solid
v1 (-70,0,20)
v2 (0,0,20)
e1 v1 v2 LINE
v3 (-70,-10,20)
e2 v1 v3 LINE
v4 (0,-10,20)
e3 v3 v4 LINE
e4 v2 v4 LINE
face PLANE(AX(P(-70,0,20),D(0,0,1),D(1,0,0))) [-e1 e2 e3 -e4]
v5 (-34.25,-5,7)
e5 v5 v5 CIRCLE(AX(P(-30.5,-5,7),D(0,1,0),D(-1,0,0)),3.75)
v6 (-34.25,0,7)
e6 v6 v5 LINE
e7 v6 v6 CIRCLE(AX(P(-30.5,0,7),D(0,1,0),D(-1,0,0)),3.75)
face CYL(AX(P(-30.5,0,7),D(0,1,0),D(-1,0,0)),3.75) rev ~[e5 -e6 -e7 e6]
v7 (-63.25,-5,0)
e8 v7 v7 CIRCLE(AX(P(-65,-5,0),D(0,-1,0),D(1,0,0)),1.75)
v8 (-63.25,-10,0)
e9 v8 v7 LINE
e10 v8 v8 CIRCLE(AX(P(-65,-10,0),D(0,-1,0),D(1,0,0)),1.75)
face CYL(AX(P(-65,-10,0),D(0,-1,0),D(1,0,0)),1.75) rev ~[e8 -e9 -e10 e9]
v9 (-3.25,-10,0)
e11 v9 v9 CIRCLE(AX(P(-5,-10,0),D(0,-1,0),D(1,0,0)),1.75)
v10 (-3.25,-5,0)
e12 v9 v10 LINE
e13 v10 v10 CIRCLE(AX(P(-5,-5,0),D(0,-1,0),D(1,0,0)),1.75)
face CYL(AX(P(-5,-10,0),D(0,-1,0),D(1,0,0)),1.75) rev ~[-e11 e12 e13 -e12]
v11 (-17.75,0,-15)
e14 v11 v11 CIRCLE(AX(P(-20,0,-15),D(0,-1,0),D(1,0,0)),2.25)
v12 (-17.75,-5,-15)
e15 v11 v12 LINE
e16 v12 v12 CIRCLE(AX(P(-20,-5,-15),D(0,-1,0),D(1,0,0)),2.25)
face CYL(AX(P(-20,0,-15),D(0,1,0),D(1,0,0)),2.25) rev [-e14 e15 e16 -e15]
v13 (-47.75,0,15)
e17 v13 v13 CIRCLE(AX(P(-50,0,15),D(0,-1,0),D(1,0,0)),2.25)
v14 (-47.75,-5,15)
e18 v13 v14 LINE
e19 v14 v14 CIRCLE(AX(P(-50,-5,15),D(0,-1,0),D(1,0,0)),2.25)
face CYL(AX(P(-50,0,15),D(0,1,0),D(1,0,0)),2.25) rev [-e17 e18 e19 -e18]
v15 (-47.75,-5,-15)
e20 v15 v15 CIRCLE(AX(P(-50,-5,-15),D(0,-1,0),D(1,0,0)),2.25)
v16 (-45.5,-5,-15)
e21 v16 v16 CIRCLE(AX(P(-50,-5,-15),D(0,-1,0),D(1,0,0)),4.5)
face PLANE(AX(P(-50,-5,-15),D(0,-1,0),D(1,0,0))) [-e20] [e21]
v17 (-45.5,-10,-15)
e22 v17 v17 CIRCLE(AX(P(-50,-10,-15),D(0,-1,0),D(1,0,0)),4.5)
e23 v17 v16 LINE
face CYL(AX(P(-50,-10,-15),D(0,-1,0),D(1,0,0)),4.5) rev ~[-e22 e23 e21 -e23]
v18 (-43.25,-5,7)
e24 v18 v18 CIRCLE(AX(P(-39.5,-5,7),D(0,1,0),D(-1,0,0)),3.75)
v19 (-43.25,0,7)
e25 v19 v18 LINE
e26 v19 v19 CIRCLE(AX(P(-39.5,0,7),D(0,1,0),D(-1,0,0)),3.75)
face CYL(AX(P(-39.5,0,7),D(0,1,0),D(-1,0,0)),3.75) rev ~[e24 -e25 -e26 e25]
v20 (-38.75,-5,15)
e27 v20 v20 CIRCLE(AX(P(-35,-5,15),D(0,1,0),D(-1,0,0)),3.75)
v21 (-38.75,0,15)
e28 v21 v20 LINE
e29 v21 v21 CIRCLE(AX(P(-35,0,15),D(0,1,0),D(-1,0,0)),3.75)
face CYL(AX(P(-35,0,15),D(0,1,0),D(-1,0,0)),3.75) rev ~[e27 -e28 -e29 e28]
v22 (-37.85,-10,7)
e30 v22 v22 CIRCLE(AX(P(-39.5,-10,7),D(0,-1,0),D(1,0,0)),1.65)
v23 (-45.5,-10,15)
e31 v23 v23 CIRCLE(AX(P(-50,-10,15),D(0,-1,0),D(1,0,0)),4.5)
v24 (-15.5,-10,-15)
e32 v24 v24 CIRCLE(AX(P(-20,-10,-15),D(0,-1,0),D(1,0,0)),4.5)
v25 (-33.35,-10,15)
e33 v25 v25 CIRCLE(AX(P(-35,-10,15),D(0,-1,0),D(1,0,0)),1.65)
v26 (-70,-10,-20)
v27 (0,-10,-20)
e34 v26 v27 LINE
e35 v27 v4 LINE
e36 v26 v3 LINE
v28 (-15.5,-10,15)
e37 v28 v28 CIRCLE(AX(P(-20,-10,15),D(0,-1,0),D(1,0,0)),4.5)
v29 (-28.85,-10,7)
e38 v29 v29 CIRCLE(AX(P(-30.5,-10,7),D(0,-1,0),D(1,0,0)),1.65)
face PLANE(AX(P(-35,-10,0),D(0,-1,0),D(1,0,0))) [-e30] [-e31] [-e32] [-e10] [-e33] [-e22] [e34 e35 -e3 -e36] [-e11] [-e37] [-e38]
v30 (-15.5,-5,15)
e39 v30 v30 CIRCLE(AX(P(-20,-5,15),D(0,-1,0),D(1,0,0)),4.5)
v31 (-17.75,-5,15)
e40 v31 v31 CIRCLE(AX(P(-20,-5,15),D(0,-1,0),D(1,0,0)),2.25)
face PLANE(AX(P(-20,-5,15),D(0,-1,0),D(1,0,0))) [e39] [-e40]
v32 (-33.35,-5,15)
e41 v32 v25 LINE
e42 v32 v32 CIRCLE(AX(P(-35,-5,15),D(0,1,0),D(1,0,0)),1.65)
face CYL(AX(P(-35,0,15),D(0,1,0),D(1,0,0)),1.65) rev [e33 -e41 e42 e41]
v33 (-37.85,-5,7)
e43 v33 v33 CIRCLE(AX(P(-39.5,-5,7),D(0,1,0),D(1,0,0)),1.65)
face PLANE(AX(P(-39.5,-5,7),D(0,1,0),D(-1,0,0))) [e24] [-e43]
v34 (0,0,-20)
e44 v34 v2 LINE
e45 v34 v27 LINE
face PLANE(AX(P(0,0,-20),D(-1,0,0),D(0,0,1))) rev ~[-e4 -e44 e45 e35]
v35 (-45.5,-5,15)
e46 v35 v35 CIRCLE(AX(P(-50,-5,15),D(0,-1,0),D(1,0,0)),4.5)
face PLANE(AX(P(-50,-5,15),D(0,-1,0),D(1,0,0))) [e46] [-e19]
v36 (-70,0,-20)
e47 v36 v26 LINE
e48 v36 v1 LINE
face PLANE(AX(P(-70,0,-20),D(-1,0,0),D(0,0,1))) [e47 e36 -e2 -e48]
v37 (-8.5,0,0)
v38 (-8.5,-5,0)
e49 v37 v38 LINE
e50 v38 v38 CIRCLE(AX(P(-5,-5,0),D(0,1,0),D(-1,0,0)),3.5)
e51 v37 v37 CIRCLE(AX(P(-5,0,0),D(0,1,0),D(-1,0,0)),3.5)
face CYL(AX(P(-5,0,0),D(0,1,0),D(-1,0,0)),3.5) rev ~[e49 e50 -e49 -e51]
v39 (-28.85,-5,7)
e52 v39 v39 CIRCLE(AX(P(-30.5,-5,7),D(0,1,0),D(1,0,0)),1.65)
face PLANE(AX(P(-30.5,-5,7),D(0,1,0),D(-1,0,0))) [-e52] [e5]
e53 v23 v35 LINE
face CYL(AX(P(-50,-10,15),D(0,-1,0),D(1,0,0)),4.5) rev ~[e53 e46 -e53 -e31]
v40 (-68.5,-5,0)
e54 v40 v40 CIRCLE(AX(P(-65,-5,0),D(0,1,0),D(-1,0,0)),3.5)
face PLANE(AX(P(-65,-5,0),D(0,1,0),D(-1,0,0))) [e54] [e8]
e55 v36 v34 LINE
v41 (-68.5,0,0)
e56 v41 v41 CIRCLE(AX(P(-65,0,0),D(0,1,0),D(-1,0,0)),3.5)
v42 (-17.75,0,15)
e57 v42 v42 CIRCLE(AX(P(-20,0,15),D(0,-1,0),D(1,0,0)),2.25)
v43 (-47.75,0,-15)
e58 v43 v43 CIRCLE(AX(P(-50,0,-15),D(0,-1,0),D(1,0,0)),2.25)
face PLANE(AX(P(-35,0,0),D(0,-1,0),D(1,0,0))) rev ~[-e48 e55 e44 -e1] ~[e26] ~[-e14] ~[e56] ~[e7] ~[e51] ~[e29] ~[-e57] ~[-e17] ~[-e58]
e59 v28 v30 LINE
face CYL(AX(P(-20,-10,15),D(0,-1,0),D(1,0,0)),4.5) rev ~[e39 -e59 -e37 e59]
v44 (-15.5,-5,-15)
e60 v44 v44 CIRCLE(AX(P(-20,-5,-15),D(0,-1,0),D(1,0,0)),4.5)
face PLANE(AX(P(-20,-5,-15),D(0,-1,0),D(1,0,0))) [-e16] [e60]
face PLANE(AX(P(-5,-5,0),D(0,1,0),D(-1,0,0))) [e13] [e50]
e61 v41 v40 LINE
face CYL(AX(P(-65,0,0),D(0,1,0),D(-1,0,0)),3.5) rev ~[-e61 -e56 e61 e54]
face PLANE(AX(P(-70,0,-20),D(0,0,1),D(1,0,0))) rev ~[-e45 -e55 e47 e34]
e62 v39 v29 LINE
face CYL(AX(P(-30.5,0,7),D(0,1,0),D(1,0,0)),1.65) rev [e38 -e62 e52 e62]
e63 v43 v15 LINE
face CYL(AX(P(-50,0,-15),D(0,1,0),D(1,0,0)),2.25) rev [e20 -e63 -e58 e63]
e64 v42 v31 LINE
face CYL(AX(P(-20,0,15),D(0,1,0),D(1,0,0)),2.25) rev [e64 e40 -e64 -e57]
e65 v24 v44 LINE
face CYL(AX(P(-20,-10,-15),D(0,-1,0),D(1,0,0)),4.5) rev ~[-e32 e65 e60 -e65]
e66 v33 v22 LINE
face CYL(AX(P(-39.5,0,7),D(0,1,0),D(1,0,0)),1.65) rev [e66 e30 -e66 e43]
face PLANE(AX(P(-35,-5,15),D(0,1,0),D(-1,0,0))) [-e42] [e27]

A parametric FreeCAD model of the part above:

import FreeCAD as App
import Part
import Sketcher
from FreeCAD import Vector
Q = App.Units.Quantity

doc = App.newDocument("Part")
body = doc.addObject("PartDesign::Body", "Body")

sketch1 = body.newObject("Sketcher::SketchObject", "Sketch")
sketch1.AttachmentSupport = (doc.getObject("XZ_Plane"), [""])
sketch1.MapMode = "FlatFace"
sketch1.addGeometry([
    Part.LineSegment(Vector(-70, 20, 0), Vector(-70, -20, 0)),
    Part.LineSegment(Vector(-70, -20, 0), Vector(0, -20, 0)),
    Part.LineSegment(Vector(0, -20, 0), Vector(0, 20, 0)),
    Part.LineSegment(Vector(0, 20, 0), Vector(-70, 20, 0)),
    Part.Circle(Vector(-50, -15, 0), Vector(0, 0, 1), 2.25),
    Part.Circle(Vector(-20, -15, 0), Vector(0, 0, 1), 2.25),
    Part.Circle(Vector(-39.5, 7, 0), Vector(0, 0, 1), 1.65),
    Part.Circle(Vector(-50, 15, 0), Vector(0, 0, 1), 2.25),
    Part.Circle(Vector(-30.5, 7, 0), Vector(0, 0, 1), 1.65),
    Part.Circle(Vector(-35, 15, 0), Vector(0, 0, 1), 1.65),
    Part.Circle(Vector(-20, 15, 0), Vector(0, 0, 1), 2.25),
], False)
sketch1.addConstraint([
    Sketcher.Constraint("Coincident", 0, 2, 1, 1),
    Sketcher.Constraint("Coincident", 1, 2, 2, 1),
    Sketcher.Constraint("Coincident", 2, 2, 3, 1),
    Sketcher.Constraint("Coincident", 3, 2, 0, 1),
    Sketcher.Constraint("Vertical", 0),
    Sketcher.Constraint("Horizontal", 1),
    Sketcher.Constraint("Vertical", 2),
    Sketcher.Constraint("Horizontal", 3),
    Sketcher.Constraint("Equal", 4, 5),
    Sketcher.Constraint("Equal", 5, 7),
    Sketcher.Constraint("Equal", 6, 8),
    Sketcher.Constraint("Equal", 8, 9),
    Sketcher.Constraint("Equal", 7, 10),
    Sketcher.Constraint("Symmetric", 1, 2, 2, 2, -1, 1),
    Sketcher.Constraint("Symmetric", 4, 3, 7, 3, -1),
    Sketcher.Constraint("Symmetric", 5, 3, 10, 3, -1),
    Sketcher.Constraint("Horizontal", 4, 3, 5, 3),
    Sketcher.Constraint("Horizontal", 6, 3, 8, 3),
    Sketcher.Constraint("Horizontal", 7, 3, 9, 3),
    Sketcher.Constraint("Diameter", 4, Q("4.5 mm")),
    Sketcher.Constraint("Diameter", 6, Q("3.3 mm")),
    Sketcher.Constraint("DistanceX", 1, 1, 1, 2, Q("70 mm")),
    Sketcher.Constraint("DistanceY", 0, 2, 0, 1, Q("40 mm")),
    Sketcher.Constraint("DistanceX", 4, 3, -1, 1, Q("50 mm")),
    Sketcher.Constraint("DistanceY", 4, 3, -1, 1, Q("15 mm")),
    Sketcher.Constraint("DistanceX", 5, 3, -1, 1, Q("20 mm")),
    Sketcher.Constraint("DistanceY", -1, 1, 6, 3, Q("7 mm")),
    Sketcher.Constraint("DistanceX", 9, 3, -1, 1, Q("35 mm")),
    Sketcher.Constraint("DistanceX", 6, 3, 8, 3, Q("9 mm")),
    Sketcher.Constraint("DistanceX", 6, 3, -1, 1, Q("39.5 mm")),
])
pad1 = body.newObject("PartDesign::Pad", "Pad")
pad1.Profile = sketch1
pad1.Length = 10

sketch2 = body.newObject("Sketcher::SketchObject", "Sketch001")
sketch2.AttachmentSupport = (doc.getObject("XZ_Plane"), [""])
sketch2.MapMode = "FlatFace"
sketch2.AttachmentOffset = App.Placement(Vector(0, 0, 10), App.Rotation())
sketch2.addGeometry([
    Part.Circle(Vector(-50, 15, 0), Vector(0, 0, 1), 4.5),
    Part.Circle(Vector(-50, 15, 0), Vector(0, 0, 1), 2.25),
    Part.Circle(Vector(-20, 15, 0), Vector(0, 0, 1), 4.5),
    Part.Circle(Vector(-20, 15, 0), Vector(0, 0, 1), 2.25),
    Part.Circle(Vector(-20, -15, 0), Vector(0, 0, 1), 4.5),
    Part.Circle(Vector(-20, -15, 0), Vector(0, 0, 1), 2.25),
    Part.Circle(Vector(-50, -15, 0), Vector(0, 0, 1), 4.5),
    Part.Circle(Vector(-50, -15, 0), Vector(0, 0, 1), 2.25),
], False)
sketch2.addConstraint([
    Sketcher.Constraint("Coincident", 1, 3, 0, 3),
    Sketcher.Constraint("Coincident", 3, 3, 2, 3),
    Sketcher.Constraint("Coincident", 5, 3, 4, 3),
    Sketcher.Constraint("Coincident", 7, 3, 6, 3),
    Sketcher.Constraint("Equal", 0, 2),
    Sketcher.Constraint("Equal", 1, 3),
    Sketcher.Constraint("Equal", 2, 4),
    Sketcher.Constraint("Equal", 3, 5),
    Sketcher.Constraint("Equal", 4, 6),
    Sketcher.Constraint("Equal", 5, 7),
    Sketcher.Constraint("Symmetric", 2, 3, 4, 3, -1),
    Sketcher.Constraint("Symmetric", 0, 3, 6, 3, -1),
    Sketcher.Constraint("Horizontal", 1, 3, 2, 3),
    Sketcher.Constraint("Diameter", 0, Q("9 mm")),
    Sketcher.Constraint("Diameter", 1, Q("4.5 mm")),
    Sketcher.Constraint("DistanceX", 0, 3, -1, 1, Q("50 mm")),
    Sketcher.Constraint("DistanceY", -1, 1, 0, 3, Q("15 mm")),
    Sketcher.Constraint("DistanceX", 2, 3, -1, 1, Q("20 mm")),
])
pocket1 = body.newObject("PartDesign::Pocket", "Pocket")
pocket1.Profile = sketch2
pocket1.Length = 5

sketch3 = body.newObject("Sketcher::SketchObject", "Sketch002")
sketch3.AttachmentSupport = (doc.getObject("XZ_Plane"), [""])
sketch3.MapMode = "FlatFace"
sketch3.addGeometry([
    Part.Circle(Vector(-35, 15, 0), Vector(0, 0, 1), 3.75),
    Part.Circle(Vector(-30.5, 7, 0), Vector(0, 0, 1), 3.75),
    Part.Circle(Vector(-39.5, 7, 0), Vector(0, 0, 1), 3.75),
], False)
sketch3.addConstraint([
    Sketcher.Constraint("Equal", 0, 1),
    Sketcher.Constraint("Equal", 1, 2),
    Sketcher.Constraint("Horizontal", 1, 3, 2, 3),
    Sketcher.Constraint("Diameter", 0, Q("7.5 mm")),
    Sketcher.Constraint("DistanceX", 0, 3, -1, 1, Q("35 mm")),
    Sketcher.Constraint("DistanceY", -1, 1, 0, 3, Q("15 mm")),
    Sketcher.Constraint("DistanceY", -1, 1, 1, 3, Q("7 mm")),
    Sketcher.Constraint("DistanceX", 2, 3, 1, 3, Q("9 mm")),
    Sketcher.Constraint("DistanceX", 1, 3, -1, 1, Q("30.5 mm")),
])
pocket2 = body.newObject("PartDesign::Pocket", "Pocket001")
pocket2.Profile = sketch3
pocket2.Length = 5
pocket2.Reversed = True

sketch4 = body.newObject("Sketcher::SketchObject", "Sketch003")
sketch4.AttachmentSupport = (doc.getObject("XZ_Plane"), [""])
sketch4.MapMode = "FlatFace"
sketch4.AttachmentOffset = App.Placement(Vector(0, 0, 10), App.Rotation())
sketch4.addGeometry([
    Part.Circle(Vector(-65, 0, 0), Vector(0, 0, 1), 1.75),
    Part.Circle(Vector(-5, 0, 0), Vector(0, 0, 1), 1.75),
], False)
sketch4.addConstraint([
    Sketcher.Constraint("Equal", 0, 1),
    Sketcher.Constraint("PointOnObject", 0, 3, -1),
    Sketcher.Constraint("PointOnObject", 1, 3, -1),
    Sketcher.Constraint("Diameter", 0, Q("3.5 mm")),
    Sketcher.Constraint("DistanceX", 0, 3, -1, 1, Q("65 mm")),
    Sketcher.Constraint("DistanceX", 1, 3, -1, 1, Q("5 mm")),
])
pocket3 = body.newObject("PartDesign::Pocket", "Pocket002")
pocket3.Profile = sketch4
pocket3.Length = 25

sketch5 = body.newObject("Sketcher::SketchObject", "Sketch004")
sketch5.AttachmentSupport = (doc.getObject("XZ_Plane"), [""])
sketch5.MapMode = "FlatFace"
sketch5.addGeometry([
    Part.Circle(Vector(-5, 0, 0), Vector(0, 0, 1), 3.5),
    Part.Circle(Vector(-65, 0, 0), Vector(0, 0, 1), 3.5),
], False)
sketch5.addConstraint([
    Sketcher.Constraint("Equal", 0, 1),
    Sketcher.Constraint("PointOnObject", 0, 3, -1),
    Sketcher.Constraint("PointOnObject", 1, 3, -1),
    Sketcher.Constraint("Diameter", 0, Q("7 mm")),
    Sketcher.Constraint("DistanceX", 0, 3, -1, 1, Q("5 mm")),
    Sketcher.Constraint("DistanceX", 1, 3, -1, 1, Q("65 mm")),
])
pocket4 = body.newObject("PartDesign::Pocket", "Pocket003")
pocket4.Profile = sketch5
pocket4.Length = 5
pocket4.Reversed = True

doc.recompute()
